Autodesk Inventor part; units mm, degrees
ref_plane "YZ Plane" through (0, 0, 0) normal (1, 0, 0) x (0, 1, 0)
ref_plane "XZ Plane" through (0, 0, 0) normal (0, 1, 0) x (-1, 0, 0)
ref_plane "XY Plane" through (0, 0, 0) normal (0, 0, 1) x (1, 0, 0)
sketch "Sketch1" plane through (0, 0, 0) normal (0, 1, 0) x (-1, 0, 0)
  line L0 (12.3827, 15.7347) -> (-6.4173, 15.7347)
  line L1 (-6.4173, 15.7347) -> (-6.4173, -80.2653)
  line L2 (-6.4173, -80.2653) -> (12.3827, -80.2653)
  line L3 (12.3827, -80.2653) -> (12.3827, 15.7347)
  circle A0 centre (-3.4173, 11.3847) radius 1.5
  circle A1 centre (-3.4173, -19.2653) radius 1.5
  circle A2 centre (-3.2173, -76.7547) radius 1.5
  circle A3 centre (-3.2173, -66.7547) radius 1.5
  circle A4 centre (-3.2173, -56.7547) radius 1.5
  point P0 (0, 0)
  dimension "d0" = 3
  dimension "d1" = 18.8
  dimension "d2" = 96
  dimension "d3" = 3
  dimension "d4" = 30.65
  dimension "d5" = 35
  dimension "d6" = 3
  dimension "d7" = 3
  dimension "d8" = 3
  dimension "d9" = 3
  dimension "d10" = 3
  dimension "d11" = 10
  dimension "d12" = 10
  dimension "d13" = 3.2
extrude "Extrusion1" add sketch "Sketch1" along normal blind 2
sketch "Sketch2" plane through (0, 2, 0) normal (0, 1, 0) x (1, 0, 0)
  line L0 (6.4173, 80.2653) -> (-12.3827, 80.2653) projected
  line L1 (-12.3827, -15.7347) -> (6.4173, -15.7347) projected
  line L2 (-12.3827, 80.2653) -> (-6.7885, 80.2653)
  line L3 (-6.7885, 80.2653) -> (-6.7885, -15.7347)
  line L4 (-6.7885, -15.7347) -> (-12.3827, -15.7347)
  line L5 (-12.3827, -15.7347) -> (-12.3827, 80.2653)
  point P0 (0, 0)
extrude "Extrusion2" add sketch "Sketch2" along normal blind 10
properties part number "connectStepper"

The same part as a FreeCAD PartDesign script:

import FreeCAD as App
import Part
import Sketcher

V = App.Vector

doc = App.newDocument("Part")
body = doc.addObject("PartDesign::Body", "Body")

# Sketch on XZ plane
sketch1 = body.newObject("Sketcher::SketchObject", "Sketch")
sketch1.AttachmentSupport = (doc.getObject("XZ_Plane"), [""])
sketch1.MapMode = "FlatFace"
sketch1.addGeometry([
    Part.LineSegment(V(-12.4, -80.3, 0), V(-12.4, 15.7, 0)),  # 0
    Part.LineSegment(V(-12.4, 15.7, 0), V(6.4, 15.7, 0)),  # 1
    Part.LineSegment(V(6.4, 15.7, 0), V(6.4, -80.3, 0)),  # 2
    Part.LineSegment(V(6.4, -80.3, 0), V(-12.4, -80.3, 0)),  # 3
    Part.Circle(V(3.2, -76.8, 0), V(0, 0, 1), 1.5),  # 4
    Part.Circle(V(3.2, -66.8, 0), V(0, 0, 1), 1.5),  # 5
    Part.Circle(V(3.2, -56.8, 0), V(0, 0, 1), 1.5),  # 6
    Part.Circle(V(3.4, -19.3, 0), V(0, 0, 1), 1.5),  # 7
    Part.Circle(V(3.4, 11.4, 0), V(0, 0, 1), 1.5),  # 8
], False)
sketch1.addConstraint([
    Sketcher.Constraint("Coincident", 0, 2, 1, 1),
    Sketcher.Constraint("Coincident", 1, 2, 2, 1),
    Sketcher.Constraint("Coincident", 2, 2, 3, 1),
    Sketcher.Constraint("Coincident", 3, 2, 0, 1),
    Sketcher.Constraint("Vertical", 0),
    Sketcher.Constraint("Horizontal", 1),
    Sketcher.Constraint("Vertical", 2),
    Sketcher.Constraint("Horizontal", 3),
    Sketcher.Constraint("Equal", 4, 5),
    Sketcher.Constraint("Equal", 5, 6),
    Sketcher.Constraint("Equal", 6, 7),
    Sketcher.Constraint("Equal", 7, 8),
    Sketcher.Constraint("Vertical", 4, 3, 5, 3),
    Sketcher.Constraint("Vertical", 5, 3, 6, 3),
    Sketcher.Constraint("Vertical", 7, 3, 8, 3),
    Sketcher.Constraint("Diameter", 4, 3.0),
    Sketcher.Constraint("DistanceY", 0, 1, 0, 2, 96.0),
    Sketcher.Constraint("DistanceX", 1, 1, 1, 2, 18.8),
    Sketcher.Constraint("DistanceY", 4, 3, 5, 3, 10.0),
    Sketcher.Constraint("DistanceY", 5, 3, 6, 3, 10.0),
    Sketcher.Constraint("DistanceY", 7, 3, 0, 2, 35.0),
    Sketcher.Constraint("DistanceX", 8, 3, 1, 2, 3.0),
    Sketcher.Constraint("DistanceX", 6, 3, 1, 2, 3.2),
    Sketcher.Constraint("DistanceY", 7, 3, 8, 3, 30.65),
    Sketcher.Constraint("DistanceX", -1, 1, 4, 3, 3.2173),
    Sketcher.Constraint("DistanceY", 4, 3, -1, 1, 76.7547),
    Sketcher.Constraint("DistanceY", 7, 3, -1, 1, 19.2653),
])
pad1 = body.newObject("PartDesign::Pad", "Pad")
pad1.Profile = sketch1
pad1.Length = 2
pad1.Reversed = True

# Sketch on XZ plane
sketch2 = body.newObject("Sketcher::SketchObject", "Sketch001")
sketch2.AttachmentSupport = (doc.getObject("XZ_Plane"), [""])
sketch2.MapMode = "FlatFace"
sketch2.AttachmentOffset = App.Placement(V(0, 0, -2), App.Rotation())
sketch2.addGeometry([
    Part.LineSegment(V(-7, 16, 0), V(-7, -80, 0)),
    Part.LineSegment(V(-7, -80, 0), V(-12, -80, 0)),
    Part.LineSegment(V(-12, -80, 0), V(-12, 16, 0)),
    Part.LineSegment(V(-12, 16, 0), V(-7, 16, 0)),
], False)
sketch2.addConstraint([
    Sketcher.Constraint("Coincident", 0, 2, 1, 1),
    Sketcher.Constraint("Coincident", 1, 2, 2, 1),
    Sketcher.Constraint("Coincident", 2, 2, 3, 1),
    Sketcher.Constraint("Coincident", 3, 2, 0, 1),
    Sketcher.Constraint("Vertical", 0),
    Sketcher.Constraint("Horizontal", 1),
    Sketcher.Constraint("Vertical", 2),
    Sketcher.Constraint("Horizontal", 3),
    Sketcher.Constraint("DistanceY", 0, 2, 0, 1, 96.0),
    Sketcher.Constraint("DistanceX", 1, 2, 1, 1, 5.5942),
    Sketcher.Constraint("DistanceX", 0, 2, -1, 1, 6.7885),
    Sketcher.Constraint("DistanceY", 0, 2, -1, 1, 80.2653),
])
pad2 = body.newObject("PartDesign::Pad", "Pad001")
pad2.Profile = sketch2
pad2.Length = 10
pad2.Reversed = True

doc.recompute()
